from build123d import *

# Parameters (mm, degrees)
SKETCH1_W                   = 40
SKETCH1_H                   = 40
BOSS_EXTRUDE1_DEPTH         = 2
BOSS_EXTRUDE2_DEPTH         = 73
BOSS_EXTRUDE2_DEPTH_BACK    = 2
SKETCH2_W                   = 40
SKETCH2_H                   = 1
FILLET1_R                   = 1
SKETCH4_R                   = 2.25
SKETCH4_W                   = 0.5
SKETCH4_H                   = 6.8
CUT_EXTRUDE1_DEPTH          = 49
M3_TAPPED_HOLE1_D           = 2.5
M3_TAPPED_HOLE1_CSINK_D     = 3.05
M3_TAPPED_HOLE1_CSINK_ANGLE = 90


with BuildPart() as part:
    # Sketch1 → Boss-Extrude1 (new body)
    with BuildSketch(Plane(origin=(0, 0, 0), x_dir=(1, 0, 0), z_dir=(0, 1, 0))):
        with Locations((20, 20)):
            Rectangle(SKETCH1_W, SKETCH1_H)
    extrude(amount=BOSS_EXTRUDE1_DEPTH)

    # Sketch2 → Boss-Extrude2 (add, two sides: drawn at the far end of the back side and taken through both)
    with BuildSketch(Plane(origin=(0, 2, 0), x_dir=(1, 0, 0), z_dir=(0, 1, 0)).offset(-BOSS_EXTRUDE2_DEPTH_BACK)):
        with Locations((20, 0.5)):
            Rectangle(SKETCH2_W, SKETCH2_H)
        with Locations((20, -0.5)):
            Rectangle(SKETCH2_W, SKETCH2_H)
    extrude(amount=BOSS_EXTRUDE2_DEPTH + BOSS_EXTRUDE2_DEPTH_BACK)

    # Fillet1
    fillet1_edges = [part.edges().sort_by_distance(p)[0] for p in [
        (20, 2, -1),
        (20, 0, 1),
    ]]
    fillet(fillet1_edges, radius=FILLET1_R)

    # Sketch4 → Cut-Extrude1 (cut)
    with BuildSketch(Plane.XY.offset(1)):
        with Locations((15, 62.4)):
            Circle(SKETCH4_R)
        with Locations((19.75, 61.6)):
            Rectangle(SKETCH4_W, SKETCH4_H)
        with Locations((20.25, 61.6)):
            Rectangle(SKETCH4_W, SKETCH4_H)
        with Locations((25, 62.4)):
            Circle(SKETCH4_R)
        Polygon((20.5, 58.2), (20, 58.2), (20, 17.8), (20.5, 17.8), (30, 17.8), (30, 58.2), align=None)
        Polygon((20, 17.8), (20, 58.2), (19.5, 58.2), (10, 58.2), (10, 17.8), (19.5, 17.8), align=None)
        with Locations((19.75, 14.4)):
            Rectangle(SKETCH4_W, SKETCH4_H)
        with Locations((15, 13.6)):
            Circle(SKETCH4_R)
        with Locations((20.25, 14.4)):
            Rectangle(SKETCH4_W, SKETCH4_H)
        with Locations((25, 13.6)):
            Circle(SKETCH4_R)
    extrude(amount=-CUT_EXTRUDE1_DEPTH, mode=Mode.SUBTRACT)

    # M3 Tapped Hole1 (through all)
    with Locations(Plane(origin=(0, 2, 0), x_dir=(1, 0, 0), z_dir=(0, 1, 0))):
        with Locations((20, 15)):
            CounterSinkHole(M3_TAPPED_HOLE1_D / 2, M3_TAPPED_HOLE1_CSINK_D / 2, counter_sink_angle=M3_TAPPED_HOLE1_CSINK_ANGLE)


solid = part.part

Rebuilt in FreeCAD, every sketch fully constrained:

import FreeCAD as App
import Part
import Sketcher

V = App.Vector


def edges_at(feature, points):
    """Names of the edges that pass closest to the given points."""
    edges = feature.Shape.Edges
    near = lambda p: min(range(len(edges)), key=lambda i: edges[i].distToShape(Part.Vertex(*p))[0])
    return sorted({f"Edge{near(p) + 1}" for p in points})


def add_polygon(sketch, points):
    """Adds a closed chain of lines whose ends are joined by coincident constraints."""
    first, n = sketch.GeometryCount, len(points)
    for a, b in zip(points, points[1:] + points[:1]):
        sketch.addGeometry(Part.LineSegment(App.Vector(*a, 0), App.Vector(*b, 0)), False)
    for i in range(n):
        sketch.addConstraint(Sketcher.Constraint("Coincident", first + i, 2, first + (i + 1) % n, 1))

doc = App.newDocument("Part")
body = doc.addObject("PartDesign::Body", "Body")

# Sketch on XZ plane
sketch1 = doc.addObject("Sketcher::SketchObject", "Sketch")
body.addObject(sketch1)
sketch1.AttachmentSupport = (doc.XZ_Plane, [""])
sketch1.MapMode = "FlatFace"
add_polygon(sketch1, [(0, -40), (0, 0), (40, 0), (40, -40)])  # lines 0-3
sketch1.addConstraint(Sketcher.Constraint("Vertical", 0))
sketch1.addConstraint(Sketcher.Constraint("Horizontal", 1))
sketch1.addConstraint(Sketcher.Constraint("Vertical", 2))
sketch1.addConstraint(Sketcher.Constraint("Horizontal", 3))
sketch1.addConstraint(Sketcher.Constraint("Coincident", 0, 2, -1, 1))
sketch1.addConstraint(Sketcher.Constraint("Equal", 3, 0))
sketch1.addConstraint(Sketcher.Constraint("DistanceX", 1, 1, 1, 2, 40.0))
pad1 = doc.addObject("PartDesign::Pad", "Pad")
body.addObject(pad1)
pad1.Profile = sketch1
pad1.Length = 2
pad1.Reversed = True

# Sketch on XZ plane
sketch2 = doc.addObject("Sketcher::SketchObject", "Sketch001")
body.addObject(sketch2)
sketch2.AttachmentSupport = (doc.XZ_Plane, [""])
sketch2.MapMode = "FlatFace"
sketch2.AttachmentOffset = App.Placement(V(0, 0, -2), App.Rotation())
add_polygon(sketch2, [(0, -1), (0, 1), (40, 1), (40, -1)])  # lines 0-3
sketch2.addConstraint(Sketcher.Constraint("Vertical", 0))
sketch2.addConstraint(Sketcher.Constraint("Horizontal", 1))
sketch2.addConstraint(Sketcher.Constraint("Vertical", 2))
sketch2.addConstraint(Sketcher.Constraint("Horizontal", 3))
sketch2.addConstraint(Sketcher.Constraint("Symmetric", 0, 2, 3, 2, -1, 1))
sketch2.addConstraint(Sketcher.Constraint("DistanceX", 1, 1, 1, 2, 40.0))
sketch2.addConstraint(Sketcher.Constraint("DistanceY", 0, 1, 0, 2, 2.0))
pad2 = doc.addObject("PartDesign::Pad", "Pad001")
body.addObject(pad2)
pad2.Profile = sketch2
pad2.Type = "TwoLengths"
pad2.Length = 73
pad2.Length2 = 2
pad2.Reversed = True
doc.recompute()

fillet = doc.addObject("PartDesign::Fillet", "Fillet")
body.addObject(fillet)
fillet.Base = (pad2, edges_at(pad2, [(20, 2, -1), (20, 0, 1)]))
fillet.Radius = 1

# Sketch on XY plane
sketch3 = doc.addObject("Sketcher::SketchObject", "Sketch002")
body.addObject(sketch3)
sketch3.AttachmentSupport = (doc.XY_Plane, [""])
sketch3.MapMode = "FlatFace"
sketch3.AttachmentOffset = App.Placement(V(0, 0, 1), App.Rotation())
sketch3.addGeometry(Part.Circle(V(15, 62.4, 0), V(0, 0, 1), 2.2), False)  # 0
add_polygon(sketch3, [(19.5, 65), (19.5, 58.2), (10, 58.2), (10, 17.8), (19.5, 17.8), (19.5, 11), (20.5, 11), (20.5, 17.8), (30, 17.8), (30, 58.2), (20.5, 58.2), (20.5, 65)])  # lines 1-12
sketch3.addGeometry(Part.Circle(V(25, 62.4, 0), V(0, 0, 1), 2.2), False)  # 13
sketch3.addGeometry(Part.Circle(V(15, 13.6, 0), V(0, 0, 1), 2.2), False)  # 14
sketch3.addGeometry(Part.Circle(V(25, 13.6, 0), V(0, 0, 1), 2.2), False)  # 15
sketch3.addConstraint(Sketcher.Constraint("Vertical", 1))
sketch3.addConstraint(Sketcher.Constraint("Horizontal", 2))
sketch3.addConstraint(Sketcher.Constraint("Vertical", 3))
sketch3.addConstraint(Sketcher.Constraint("Horizontal", 4))
sketch3.addConstraint(Sketcher.Constraint("Vertical", 5))
sketch3.addConstraint(Sketcher.Constraint("Horizontal", 6))
sketch3.addConstraint(Sketcher.Constraint("Vertical", 7))
sketch3.addConstraint(Sketcher.Constraint("Horizontal", 8))
sketch3.addConstraint(Sketcher.Constraint("Vertical", 9))
sketch3.addConstraint(Sketcher.Constraint("Horizontal", 10))
sketch3.addConstraint(Sketcher.Constraint("Vertical", 11))
sketch3.addConstraint(Sketcher.Constraint("Horizontal", 12))
sketch3.addConstraint(Sketcher.Constraint("Equal", 0, 13))
sketch3.addConstraint(Sketcher.Constraint("Equal", 13, 14))
sketch3.addConstraint(Sketcher.Constraint("Equal", 14, 15))
sketch3.addConstraint(Sketcher.Constraint("Horizontal", 0, 3, 13, 3))
sketch3.addConstraint(Sketcher.Constraint("Horizontal", 14, 3, 15, 3))
sketch3.addConstraint(Sketcher.Constraint("Horizontal", 4, 2, 7, 2))
sketch3.addConstraint(Sketcher.Constraint("Horizontal", 2, 2, 9, 2))
sketch3.addConstraint(Sketcher.Constraint("Vertical", 0, 3, 14, 3))
sketch3.addConstraint(Sketcher.Constraint("Vertical", 13, 3, 15, 3))
sketch3.addConstraint(Sketcher.Constraint("Vertical", 1, 2, 4, 2))
sketch3.addConstraint(Sketcher.Constraint("Vertical", 7, 2, 10, 2))
sketch3.addConstraint(Sketcher.Constraint("Equal", 4, 8))
sketch3.addConstraint(Sketcher.Constraint("Equal", 1, 5))
sketch3.addConstraint(Sketcher.Constraint("Diameter", 0, 4.5))
sketch3.addConstraint(Sketcher.Constraint("DistanceX", 6, 1, 6, 2, 1.0))
sketch3.addConstraint(Sketcher.Constraint("DistanceX", 2, 2, 2, 1, 9.5))
sketch3.addConstraint(Sketcher.Constraint("DistanceY", 1, 2, 1, 1, 6.8))
sketch3.addConstraint(Sketcher.Constraint("DistanceY", 3, 2, 3, 1, 40.4))
sketch3.addConstraint(Sketcher.Constraint("DistanceX", -1, 1, 0, 3, 15.0))
sketch3.addConstraint(Sketcher.Constraint("DistanceX", -1, 1, 13, 3, 25.0))
sketch3.addConstraint(Sketcher.Constraint("DistanceX", -1, 1, 2, 2, 10.0))
sketch3.addConstraint(Sketcher.Constraint("DistanceY", -1, 1, 5, 2, 11.0))
sketch3.addConstraint(Sketcher.Constraint("DistanceY", -1, 1, 0, 3, 62.4))
sketch3.addConstraint(Sketcher.Constraint("DistanceY", -1, 1, 14, 3, 13.6))
pocket1 = doc.addObject("PartDesign::Pocket", "Pocket")
body.addObject(pocket1)
pocket1.Profile = sketch3
pocket1.Length = 49

# Sketch on XZ plane
sketch4 = doc.addObject("Sketcher::SketchObject", "Sketch003")
body.addObject(sketch4)
sketch4.AttachmentSupport = (doc.XZ_Plane, [""])
sketch4.MapMode = "FlatFace"
sketch4.AttachmentOffset = App.Placement(V(0, 0, -2), App.Rotation())
sketch4.addGeometry(Part.Circle(V(20, -15, 0), V(0, 0, 1), 1.2), False)
sketch4.addConstraint(Sketcher.Constraint("Diameter", 0, 2.5))
sketch4.addConstraint(Sketcher.Constraint("DistanceX", -1, 1, 0, 3, 20.0))
sketch4.addConstraint(Sketcher.Constraint("DistanceY", 0, 3, -1, 1, 15.0))
doc.recompute()
hole = doc.addObject("PartDesign::Hole", "Hole")
body.addObject(hole)
hole.Profile = sketch4
hole.ThreadType = "None"
hole.Diameter = 2.5
hole.DepthType = "ThroughAll"
hole.HoleCutType = "Countersink"
hole.HoleCutDiameter = 3.05
hole.HoleCutCountersinkAngle = 90
hole.Reversed = True

doc.recompute()
